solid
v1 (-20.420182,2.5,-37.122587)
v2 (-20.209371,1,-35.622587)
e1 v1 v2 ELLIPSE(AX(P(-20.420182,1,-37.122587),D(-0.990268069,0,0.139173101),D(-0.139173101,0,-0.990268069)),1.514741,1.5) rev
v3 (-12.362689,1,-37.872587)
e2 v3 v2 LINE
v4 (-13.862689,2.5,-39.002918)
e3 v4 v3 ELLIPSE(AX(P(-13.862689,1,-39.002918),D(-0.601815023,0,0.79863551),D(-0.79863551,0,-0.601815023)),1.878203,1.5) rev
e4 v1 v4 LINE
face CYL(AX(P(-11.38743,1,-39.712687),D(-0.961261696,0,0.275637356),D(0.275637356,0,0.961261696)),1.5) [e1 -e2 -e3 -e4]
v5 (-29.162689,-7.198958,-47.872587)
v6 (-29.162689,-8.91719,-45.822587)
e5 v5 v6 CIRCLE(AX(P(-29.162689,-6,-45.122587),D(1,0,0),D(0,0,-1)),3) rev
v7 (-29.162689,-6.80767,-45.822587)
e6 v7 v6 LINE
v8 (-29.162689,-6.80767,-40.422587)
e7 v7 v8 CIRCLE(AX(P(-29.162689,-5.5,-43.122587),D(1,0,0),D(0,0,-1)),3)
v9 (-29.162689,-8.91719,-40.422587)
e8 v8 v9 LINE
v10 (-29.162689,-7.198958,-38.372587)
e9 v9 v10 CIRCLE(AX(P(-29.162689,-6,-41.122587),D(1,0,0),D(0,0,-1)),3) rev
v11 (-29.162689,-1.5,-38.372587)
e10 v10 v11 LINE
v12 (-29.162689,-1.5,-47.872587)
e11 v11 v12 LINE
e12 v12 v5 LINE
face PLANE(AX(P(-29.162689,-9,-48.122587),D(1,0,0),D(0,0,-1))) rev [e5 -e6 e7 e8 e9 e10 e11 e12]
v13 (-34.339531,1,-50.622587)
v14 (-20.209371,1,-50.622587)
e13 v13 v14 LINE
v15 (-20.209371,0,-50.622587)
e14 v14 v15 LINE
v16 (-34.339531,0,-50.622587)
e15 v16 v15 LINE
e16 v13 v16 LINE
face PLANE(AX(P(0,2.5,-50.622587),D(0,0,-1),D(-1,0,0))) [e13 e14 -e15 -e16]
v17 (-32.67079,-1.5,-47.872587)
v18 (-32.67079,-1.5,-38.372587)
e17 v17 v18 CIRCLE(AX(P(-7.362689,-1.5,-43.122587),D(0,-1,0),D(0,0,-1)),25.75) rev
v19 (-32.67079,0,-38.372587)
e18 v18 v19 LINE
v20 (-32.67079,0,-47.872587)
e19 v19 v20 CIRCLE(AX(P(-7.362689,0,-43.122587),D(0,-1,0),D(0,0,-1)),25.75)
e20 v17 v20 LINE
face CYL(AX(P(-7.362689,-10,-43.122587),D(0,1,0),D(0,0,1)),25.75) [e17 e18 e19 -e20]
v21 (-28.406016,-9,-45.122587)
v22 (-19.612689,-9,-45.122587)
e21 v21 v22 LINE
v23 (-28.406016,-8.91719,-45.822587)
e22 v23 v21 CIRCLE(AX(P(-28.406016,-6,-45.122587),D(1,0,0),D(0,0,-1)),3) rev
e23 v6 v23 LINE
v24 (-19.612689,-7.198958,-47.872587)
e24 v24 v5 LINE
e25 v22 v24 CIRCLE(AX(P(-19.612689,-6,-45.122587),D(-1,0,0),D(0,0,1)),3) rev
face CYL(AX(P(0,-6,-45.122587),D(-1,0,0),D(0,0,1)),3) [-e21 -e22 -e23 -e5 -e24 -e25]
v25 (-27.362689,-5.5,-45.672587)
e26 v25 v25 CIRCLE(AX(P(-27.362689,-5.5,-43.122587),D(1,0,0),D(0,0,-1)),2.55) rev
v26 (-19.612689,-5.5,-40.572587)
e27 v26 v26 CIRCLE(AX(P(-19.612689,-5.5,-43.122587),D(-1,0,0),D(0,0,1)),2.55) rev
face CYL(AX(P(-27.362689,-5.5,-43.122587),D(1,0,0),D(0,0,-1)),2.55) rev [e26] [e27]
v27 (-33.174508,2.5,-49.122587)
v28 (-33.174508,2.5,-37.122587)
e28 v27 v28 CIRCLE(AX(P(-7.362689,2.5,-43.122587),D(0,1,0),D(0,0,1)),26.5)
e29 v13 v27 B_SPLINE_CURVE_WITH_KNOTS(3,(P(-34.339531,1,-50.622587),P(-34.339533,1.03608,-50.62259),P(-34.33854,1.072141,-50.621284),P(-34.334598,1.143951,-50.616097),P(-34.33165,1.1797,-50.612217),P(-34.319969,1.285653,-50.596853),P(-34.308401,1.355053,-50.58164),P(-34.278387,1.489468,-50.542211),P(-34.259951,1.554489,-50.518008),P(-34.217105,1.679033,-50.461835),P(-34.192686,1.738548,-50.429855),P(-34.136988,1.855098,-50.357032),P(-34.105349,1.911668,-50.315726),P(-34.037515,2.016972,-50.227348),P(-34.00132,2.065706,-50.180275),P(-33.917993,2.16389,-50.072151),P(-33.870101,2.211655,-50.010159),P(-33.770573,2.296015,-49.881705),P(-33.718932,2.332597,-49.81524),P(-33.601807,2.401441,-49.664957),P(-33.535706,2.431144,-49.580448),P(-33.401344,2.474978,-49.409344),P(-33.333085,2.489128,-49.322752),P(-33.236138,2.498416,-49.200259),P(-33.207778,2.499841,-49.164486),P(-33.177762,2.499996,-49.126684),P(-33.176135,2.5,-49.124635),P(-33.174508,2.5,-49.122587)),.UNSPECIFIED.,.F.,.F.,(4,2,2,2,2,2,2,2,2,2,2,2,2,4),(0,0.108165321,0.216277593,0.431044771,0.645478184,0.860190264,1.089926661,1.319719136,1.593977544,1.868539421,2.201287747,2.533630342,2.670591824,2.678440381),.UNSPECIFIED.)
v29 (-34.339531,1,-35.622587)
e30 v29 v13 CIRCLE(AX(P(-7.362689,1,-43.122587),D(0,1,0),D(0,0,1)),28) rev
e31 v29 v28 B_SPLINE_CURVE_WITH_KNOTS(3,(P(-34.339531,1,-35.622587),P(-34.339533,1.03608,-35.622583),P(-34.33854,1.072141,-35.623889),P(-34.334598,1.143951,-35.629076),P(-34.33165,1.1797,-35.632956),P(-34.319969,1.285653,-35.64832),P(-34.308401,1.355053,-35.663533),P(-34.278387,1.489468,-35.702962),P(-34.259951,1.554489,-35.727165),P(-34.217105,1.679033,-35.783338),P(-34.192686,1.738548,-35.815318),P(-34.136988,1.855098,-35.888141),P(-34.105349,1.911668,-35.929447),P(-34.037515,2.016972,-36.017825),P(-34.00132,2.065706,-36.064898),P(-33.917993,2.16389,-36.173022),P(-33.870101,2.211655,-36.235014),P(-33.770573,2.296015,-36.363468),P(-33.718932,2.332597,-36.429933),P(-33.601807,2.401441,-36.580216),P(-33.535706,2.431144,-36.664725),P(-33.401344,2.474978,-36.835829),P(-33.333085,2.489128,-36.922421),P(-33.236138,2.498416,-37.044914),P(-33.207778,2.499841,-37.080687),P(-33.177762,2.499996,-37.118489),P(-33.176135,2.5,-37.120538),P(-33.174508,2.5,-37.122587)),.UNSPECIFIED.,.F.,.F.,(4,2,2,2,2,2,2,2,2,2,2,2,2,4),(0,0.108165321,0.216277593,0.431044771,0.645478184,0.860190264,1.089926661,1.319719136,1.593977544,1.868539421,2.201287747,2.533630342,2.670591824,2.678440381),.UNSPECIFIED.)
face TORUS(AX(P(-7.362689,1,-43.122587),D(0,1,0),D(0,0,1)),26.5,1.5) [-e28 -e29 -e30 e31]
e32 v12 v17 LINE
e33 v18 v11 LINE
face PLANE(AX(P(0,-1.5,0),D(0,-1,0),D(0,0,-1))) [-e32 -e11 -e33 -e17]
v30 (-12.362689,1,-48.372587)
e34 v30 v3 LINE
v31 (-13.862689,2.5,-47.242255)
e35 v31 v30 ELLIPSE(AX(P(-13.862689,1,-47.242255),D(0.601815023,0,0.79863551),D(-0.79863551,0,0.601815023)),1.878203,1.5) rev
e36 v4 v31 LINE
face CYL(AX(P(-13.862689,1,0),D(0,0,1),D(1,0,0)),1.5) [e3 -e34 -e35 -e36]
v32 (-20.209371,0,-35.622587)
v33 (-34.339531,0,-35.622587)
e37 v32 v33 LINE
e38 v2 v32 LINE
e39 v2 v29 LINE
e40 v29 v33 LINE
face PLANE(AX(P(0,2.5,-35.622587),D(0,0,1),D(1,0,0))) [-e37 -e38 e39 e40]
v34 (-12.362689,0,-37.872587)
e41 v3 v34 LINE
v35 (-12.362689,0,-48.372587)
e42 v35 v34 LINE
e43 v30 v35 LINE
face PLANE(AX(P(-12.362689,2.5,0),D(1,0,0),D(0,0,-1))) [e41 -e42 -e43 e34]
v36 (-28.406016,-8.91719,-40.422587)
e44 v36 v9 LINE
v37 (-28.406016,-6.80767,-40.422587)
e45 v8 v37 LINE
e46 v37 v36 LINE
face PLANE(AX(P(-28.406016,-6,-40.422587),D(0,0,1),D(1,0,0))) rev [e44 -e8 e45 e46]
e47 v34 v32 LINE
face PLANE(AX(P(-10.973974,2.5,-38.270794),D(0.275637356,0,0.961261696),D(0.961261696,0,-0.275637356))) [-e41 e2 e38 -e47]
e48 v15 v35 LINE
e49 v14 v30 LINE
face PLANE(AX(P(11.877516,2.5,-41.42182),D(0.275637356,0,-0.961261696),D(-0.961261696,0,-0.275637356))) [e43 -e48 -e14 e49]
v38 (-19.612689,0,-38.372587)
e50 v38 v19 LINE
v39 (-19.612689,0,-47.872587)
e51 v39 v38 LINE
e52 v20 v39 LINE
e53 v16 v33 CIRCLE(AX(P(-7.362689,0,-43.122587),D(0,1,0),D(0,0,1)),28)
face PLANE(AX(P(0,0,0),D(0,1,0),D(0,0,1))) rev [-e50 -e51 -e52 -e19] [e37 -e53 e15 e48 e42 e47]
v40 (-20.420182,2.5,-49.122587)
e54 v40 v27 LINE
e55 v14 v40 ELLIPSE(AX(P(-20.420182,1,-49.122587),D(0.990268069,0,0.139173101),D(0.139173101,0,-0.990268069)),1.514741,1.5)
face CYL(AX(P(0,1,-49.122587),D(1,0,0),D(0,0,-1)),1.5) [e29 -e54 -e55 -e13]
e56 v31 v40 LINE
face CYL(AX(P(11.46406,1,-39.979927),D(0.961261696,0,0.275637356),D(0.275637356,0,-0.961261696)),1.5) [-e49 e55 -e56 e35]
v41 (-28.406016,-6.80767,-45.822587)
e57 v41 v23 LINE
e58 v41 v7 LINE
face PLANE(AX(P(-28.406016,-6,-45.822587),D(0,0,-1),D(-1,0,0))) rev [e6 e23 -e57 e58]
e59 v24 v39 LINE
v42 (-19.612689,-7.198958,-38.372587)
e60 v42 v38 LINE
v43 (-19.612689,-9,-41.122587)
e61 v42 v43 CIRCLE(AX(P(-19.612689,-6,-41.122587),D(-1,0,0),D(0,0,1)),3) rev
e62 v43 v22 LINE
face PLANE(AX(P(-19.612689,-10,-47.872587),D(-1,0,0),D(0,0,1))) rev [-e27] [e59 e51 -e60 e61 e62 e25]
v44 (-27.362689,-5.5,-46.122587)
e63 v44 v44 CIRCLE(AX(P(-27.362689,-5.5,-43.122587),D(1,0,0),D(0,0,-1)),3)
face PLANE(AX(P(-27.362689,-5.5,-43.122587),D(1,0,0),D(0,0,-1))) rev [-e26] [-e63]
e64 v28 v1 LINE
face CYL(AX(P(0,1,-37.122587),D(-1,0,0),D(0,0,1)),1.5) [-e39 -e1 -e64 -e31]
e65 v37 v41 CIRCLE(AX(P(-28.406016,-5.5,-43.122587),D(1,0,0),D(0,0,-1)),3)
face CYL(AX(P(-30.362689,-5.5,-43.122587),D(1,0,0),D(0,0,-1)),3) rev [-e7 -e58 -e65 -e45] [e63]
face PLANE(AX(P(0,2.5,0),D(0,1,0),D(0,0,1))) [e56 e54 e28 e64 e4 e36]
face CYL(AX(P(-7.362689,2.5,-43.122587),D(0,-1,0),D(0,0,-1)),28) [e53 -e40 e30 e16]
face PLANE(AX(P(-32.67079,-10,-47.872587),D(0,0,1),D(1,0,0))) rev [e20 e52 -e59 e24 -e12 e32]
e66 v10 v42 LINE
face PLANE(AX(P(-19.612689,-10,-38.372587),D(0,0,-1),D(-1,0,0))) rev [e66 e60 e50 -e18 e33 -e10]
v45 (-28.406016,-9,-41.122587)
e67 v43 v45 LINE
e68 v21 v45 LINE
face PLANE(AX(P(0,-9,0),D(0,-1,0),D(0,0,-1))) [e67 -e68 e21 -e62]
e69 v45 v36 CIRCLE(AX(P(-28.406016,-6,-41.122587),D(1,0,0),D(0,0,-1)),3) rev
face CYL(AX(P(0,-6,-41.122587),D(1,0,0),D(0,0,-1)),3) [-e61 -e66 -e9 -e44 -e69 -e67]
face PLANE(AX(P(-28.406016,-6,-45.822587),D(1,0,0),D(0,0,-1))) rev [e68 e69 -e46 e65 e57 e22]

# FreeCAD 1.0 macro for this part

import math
import FreeCAD as App
import Part
import Sketcher
Q = App.Units.Quantity


def edges_at(feature, points):
    """Names of the edges that pass closest to the given points."""
    edges = feature.Shape.Edges
    near = lambda p: min(range(len(edges)), key=lambda i: edges[i].distToShape(Part.Vertex(*p))[0])
    return sorted({f"Edge{near(p) + 1}" for p in points})


def add_polygon(sketch, points):
    """Adds a closed chain of lines whose ends are joined by coincident constraints."""
    first, n = sketch.GeometryCount, len(points)
    for a, b in zip(points, points[1:] + points[:1]):
        sketch.addGeometry(Part.LineSegment(App.Vector(*a, 0), App.Vector(*b, 0)), False)
    for i in range(n):
        sketch.addConstraint(Sketcher.Constraint("Coincident", first + i, 2, first + (i + 1) % n, 1))

doc = App.newDocument("Part")
params = doc.addObject("Spreadsheet::Sheet", "Params")
for row, (alias, value) in enumerate([
    ("sketch1_radius", "28 mm"),
    ("sketch1_height", "10.5 mm"),
    ("pad1_length", "2.5 mm"),
    ("sketch2_radius", "26 mm"),
    ("sketch2_height", "10 mm"),
    ("pad2_length", "1.5 mm"),
    ("pad2_length2", "1.5 mm"),
    ("fillet_radius", "1.5 mm"),
    ("sketch3_height", "10 mm"),
    ("sketch3_width", "9.8 mm"),
    ("pad3_length", "7.5 mm"),
    ("sketch4_diameter", "5.1 mm"),
    ("pocket1_length", "8 mm"),
    ("fillet2_radius", "3 mm"),
    ("sketch5_diameter", "6 mm"),
    ("sketch5_diameter2", "5.2 mm"),
    ("pad4_length", "0.8 mm"),
    ("sketch6_height", "5.4 mm"),
    ("pocket2_length", "3 mm"),
    ("sketch7_diameter", "6 mm"),
    ("pocket3_length", "3 mm"),
    ("sketch8_radius", "26 mm"),
    ("sketch8_height", "10 mm"),
    ("sketch8_radius2", "25.75 mm"),
    ("sketch8_height2", "9.5 mm"),
    ("pocket4_length", "10 mm"),
], start=1):
    params.set(f"A{row}", alias)
    params.set(f"B{row}", "=" + value)
    params.setAlias(f"B{row}", alias)

body = doc.addObject("PartDesign::Body", "Body")

# Sketch on XZ plane
sketch1 = doc.addObject("Sketcher::SketchObject", "Sketch")
body.addObject(sketch1)
sketch1.AttachmentSupport = (doc.XZ_Plane, [""])
sketch1.MapMode = "FlatFace"
sketch1.addGeometry([
    Part.LineSegment(App.Vector(-20.209371, -50.622587, 0), App.Vector(-34.339531, -50.622587, 0)),  # 0
    Part.ArcOfCircle(Part.Circle(App.Vector(-7.362689, -43.122587, 0), App.Vector(0, 0, 1), 28), math.radians(164.463206), math.radians(195.536794)),  # 1
    Part.LineSegment(App.Vector(-34.339531, -35.622587, 0), App.Vector(-20.209371, -35.622587, 0)),  # 2
    Part.LineSegment(App.Vector(-20.209371, -35.622587, 0), App.Vector(-12.362689, -37.872587, 0)),  # 3
    Part.LineSegment(App.Vector(-12.362689, -37.872587, 0), App.Vector(-12.362689, -48.372587, 0)),  # 4
    Part.LineSegment(App.Vector(-12.362689, -48.372587, 0), App.Vector(-20.209371, -50.622587, 0)),  # 5
], False)
sketch1.addConstraint([
    Sketcher.Constraint("Coincident", 0, 2, 1, 2),
    Sketcher.Constraint("Coincident", 1, 1, 2, 1),
    Sketcher.Constraint("Coincident", 2, 2, 3, 1),
    Sketcher.Constraint("Coincident", 3, 2, 4, 1),
    Sketcher.Constraint("Coincident", 4, 2, 5, 1),
    Sketcher.Constraint("Coincident", 5, 2, 0, 1),
    Sketcher.Constraint("Horizontal", 0),
    Sketcher.Constraint("Horizontal", 2),
    Sketcher.Constraint("Vertical", 4),
    Sketcher.Constraint("Vertical", 0, 2, 1, 1),
    Sketcher.Constraint("Vertical", 2, 2, 5, 2),
    Sketcher.Constraint("Equal", 3, 5),
    Sketcher.Constraint("Radius", 1, 28.0),
    Sketcher.Constraint("Angle", 3, Q("-16 deg")),
    Sketcher.Constraint("DistanceY", 4, 2, 4, 1, 10.5),
    Sketcher.Constraint("DistanceY", 0, 2, 1, 1, 15.0),
    Sketcher.Constraint("DistanceX", 3, 2, 1, 3, 5.0),
    Sketcher.Constraint("DistanceX", 1, 3, -1, 1, 7.362689),
    Sketcher.Constraint("DistanceY", 1, 3, -1, 1, 43.122587),
])
sketch1.setExpression("Constraints[12]", "Params.sketch1_radius")
sketch1.setExpression("Constraints[14]", "Params.sketch1_height")
pad1 = doc.addObject("PartDesign::Pad", "Pad")
body.addObject(pad1)
pad1.Profile = sketch1
pad1.setExpression("Length", "Params.pad1_length")
pad1.Reversed = True

# Sketch on XZ plane
sketch2 = doc.addObject("Sketcher::SketchObject", "Sketch001")
body.addObject(sketch2)
sketch2.AttachmentSupport = (doc.XZ_Plane, [""])
sketch2.MapMode = "FlatFace"
sketch2.addGeometry([
    Part.LineSegment(App.Vector(-19.362689, -38.122587, 0), App.Vector(-32.87739, -38.122587, 0)),
    Part.ArcOfCircle(Part.Circle(App.Vector(-7.362689, -43.122587, 0), App.Vector(0, 0, 1), 26), math.radians(168.912511), math.radians(191.087489)),
    Part.LineSegment(App.Vector(-32.87739, -48.122587, 0), App.Vector(-19.362689, -48.122587, 0)),
    Part.LineSegment(App.Vector(-19.362689, -48.122587, 0), App.Vector(-19.362689, -38.122587, 0)),
], False)
sketch2.addConstraint([
    Sketcher.Constraint("Coincident", 0, 2, 1, 1),
    Sketcher.Constraint("Coincident", 1, 2, 2, 1),
    Sketcher.Constraint("Coincident", 2, 2, 3, 1),
    Sketcher.Constraint("Coincident", 3, 2, 0, 1),
    Sketcher.Constraint("Horizontal", 0),
    Sketcher.Constraint("Horizontal", 2),
    Sketcher.Constraint("Vertical", 3),
    Sketcher.Constraint("Vertical", 0, 2, 1, 2),
    Sketcher.Constraint("Radius", 1, 26.0),
    Sketcher.Constraint("DistanceY", 3, 1, 3, 2, 10.0),
    Sketcher.Constraint("DistanceX", 2, 2, 1, 3, 12.0),
    Sketcher.Constraint("DistanceX", 1, 3, -1, 1, 7.362689),
    Sketcher.Constraint("DistanceY", 1, 3, -1, 1, 43.122587),
])
sketch2.setExpression("Constraints[8]", "Params.sketch2_radius")
sketch2.setExpression("Constraints[9]", "Params.sketch2_height")
pad2 = doc.addObject("PartDesign::Pad", "Pad001")
body.addObject(pad2)
pad2.Profile = sketch2
pad2.Type = "TwoLengths"
pad2.setExpression("Length", "Params.pad2_length")
pad2.setExpression("Length2", "Params.pad2_length2")
doc.recompute()

fillet = doc.addObject("PartDesign::Fillet", "Fillet")
body.addObject(fillet)
fillet.Base = (pad2, edges_at(pad2, [
    (-27.274, 2.5, -35.623),
    (-16.286, 2.5, -36.748),
    (-12.363, 2.5, -43.123),
    (-16.286, 2.5, -49.498),
    (-27.274, 2.5, -50.623),
    (-35.363, 2.5, -43.123),
]))
fillet.setExpression("Radius", "Params.fillet_radius")

# Sketch on XZ plane
sketch3 = doc.addObject("Sketcher::SketchObject", "Sketch002")
body.addObject(sketch3)
sketch3.AttachmentSupport = (doc.XZ_Plane, [""])
sketch3.MapMode = "FlatFace"
sketch3.AttachmentOffset = App.Placement(App.Vector(0, 0, 1.5), App.Rotation())
add_polygon(sketch3, [(-29.162689, -38.122587), (-29.162689, -48.122587), (-19.362689, -48.122587), (-19.362689, -38.122587)])  # lines 0-3
sketch3.addConstraint([
    Sketcher.Constraint("Vertical", 0),
    Sketcher.Constraint("Horizontal", 1),
    Sketcher.Constraint("Vertical", 2),
    Sketcher.Constraint("Horizontal", 3),
    Sketcher.Constraint("DistanceY", 0, 2, 0, 1, 10.0),
    Sketcher.Constraint("DistanceX", 1, 1, 1, 2, 9.8),
    Sketcher.Constraint("DistanceX", 0, 2, -1, 1, 29.162689),
    Sketcher.Constraint("DistanceY", 0, 2, -1, 1, 48.122587),
])
sketch3.setExpression("Constraints[8]", "Params.sketch3_height")
sketch3.setExpression("Constraints[9]", "Params.sketch3_width")
pad3 = doc.addObject("PartDesign::Pad", "Pad002")
body.addObject(pad3)
pad3.Profile = sketch3
pad3.setExpression("Length", "Params.pad3_length")

# Sketch on YZ plane
sketch4 = doc.addObject("Sketcher::SketchObject", "Sketch003")
body.addObject(sketch4)
sketch4.AttachmentSupport = (doc.YZ_Plane, [""])
sketch4.MapMode = "FlatFace"
sketch4.AttachmentOffset = App.Placement(App.Vector(0, 0, -19.362689), App.Rotation())
sketch4.addGeometry(Part.Circle(App.Vector(-5.5, -43.122587, 0), App.Vector(0, 0, 1), 2.55), False)
sketch4.addConstraint([
    Sketcher.Constraint("Diameter", 0, 5.1),
    Sketcher.Constraint("DistanceX", 0, 3, -1, 1, 5.5),
    Sketcher.Constraint("DistanceY", 0, 3, -1, 1, 43.122587),
])
sketch4.setExpression("Constraints[0]", "Params.sketch4_diameter")
pocket1 = doc.addObject("PartDesign::Pocket", "Pocket")
body.addObject(pocket1)
pocket1.Profile = sketch4
pocket1.setExpression("Length", "Params.pocket1_length")
doc.recompute()

fillet2 = doc.addObject("PartDesign::Fillet", "Fillet001")
body.addObject(fillet2)
fillet2.Base = (pocket1, edges_at(pocket1, [(-24.263, -9, -38.123), (-24.263, -9, -48.123)]))
fillet2.setExpression("Radius", "Params.fillet2_radius")

# Sketch on YZ plane
sketch5 = doc.addObject("Sketcher::SketchObject", "Sketch004")
body.addObject(sketch5)
sketch5.AttachmentSupport = (doc.YZ_Plane, [""])
sketch5.MapMode = "FlatFace"
sketch5.AttachmentOffset = App.Placement(App.Vector(0, 0, -29.162689), App.Rotation())
sketch5.addGeometry([
    Part.Circle(App.Vector(-5.5, -43.122587, 0), App.Vector(0, 0, 1), 3),
    Part.Circle(App.Vector(-5.5, -43.122587, 0), App.Vector(0, 0, 1), 2.6),
], False)
sketch5.addConstraint([
    Sketcher.Constraint("Coincident", 1, 3, 0, 3),
    Sketcher.Constraint("Diameter", 0, 6.0),
    Sketcher.Constraint("Diameter", 1, 5.2),
    Sketcher.Constraint("DistanceX", 0, 3, -1, 1, 5.5),
    Sketcher.Constraint("DistanceY", 0, 3, -1, 1, 43.122587),
])
sketch5.setExpression("Constraints[1]", "Params.sketch5_diameter")
sketch5.setExpression("Constraints[2]", "Params.sketch5_diameter2")
pad4 = doc.addObject("PartDesign::Pad", "Pad003")
body.addObject(pad4)
pad4.Profile = sketch5
pad4.setExpression("Length", "Params.pad4_length")

# Sketch on XZ plane
sketch6 = doc.addObject("Sketcher::SketchObject", "Sketch005")
body.addObject(sketch6)
sketch6.AttachmentSupport = (doc.XZ_Plane, [""])
sketch6.MapMode = "FlatFace"
sketch6.AttachmentOffset = App.Placement(App.Vector(0, 0, 9), App.Rotation())
add_polygon(sketch6, [(-28.406016, -45.822587), (-28.406016, -40.422587), (-29.162689, -40.422587), (-29.162689, -45.822587)])  # lines 0-3
sketch6.addConstraint([
    Sketcher.Constraint("Vertical", 0),
    Sketcher.Constraint("Horizontal", 1),
    Sketcher.Constraint("Vertical", 2),
    Sketcher.Constraint("Horizontal", 3),
    Sketcher.Constraint("DistanceY", 0, 1, 0, 2, 5.4),
    Sketcher.Constraint("DistanceX", 1, 2, 1, 1, 0.756673),
    Sketcher.Constraint("DistanceX", 1, 2, -1, 1, 29.162689),
    Sketcher.Constraint("DistanceY", 0, 2, -1, 1, 40.422587),
])
sketch6.setExpression("Constraints[8]", "Params.sketch6_height")
pocket2 = doc.addObject("PartDesign::Pocket", "Pocket001")
body.addObject(pocket2)
pocket2.Profile = sketch6
pocket2.setExpression("Length", "Params.pocket2_length")

# Sketch on YZ plane
sketch7 = doc.addObject("Sketcher::SketchObject", "Sketch006")
body.addObject(sketch7)
sketch7.AttachmentSupport = (doc.YZ_Plane, [""])
sketch7.MapMode = "FlatFace"
sketch7.AttachmentOffset = App.Placement(App.Vector(0, 0, -27.362689), App.Rotation())
sketch7.addGeometry(Part.Circle(App.Vector(-5.5, -43.122587, 0), App.Vector(0, 0, 1), 3), False)
sketch7.addConstraint([
    Sketcher.Constraint("Diameter", 0, 6.0),
    Sketcher.Constraint("DistanceX", 0, 3, -1, 1, 5.5),
    Sketcher.Constraint("DistanceY", 0, 3, -1, 1, 43.122587),
])
sketch7.setExpression("Constraints[0]", "Params.sketch7_diameter")
pocket3 = doc.addObject("PartDesign::Pocket", "Pocket002")
body.addObject(pocket3)
pocket3.Profile = sketch7
pocket3.setExpression("Length", "Params.pocket3_length")

# Sketch on XZ plane
sketch8 = doc.addObject("Sketcher::SketchObject", "Sketch007")
body.addObject(sketch8)
sketch8.AttachmentSupport = (doc.XZ_Plane, [""])
sketch8.MapMode = "FlatFace"
sketch8.addGeometry([
    Part.LineSegment(App.Vector(-19.362689, -38.122587, 0), App.Vector(-32.87739, -38.122587, 0)),  # 0
    Part.ArcOfCircle(Part.Circle(App.Vector(-7.362689, -43.122587, 0), App.Vector(0, 0, 1), 26), math.radians(168.912511), math.radians(191.087489)),  # 1
    Part.LineSegment(App.Vector(-32.87739, -48.122587, 0), App.Vector(-19.362689, -48.122587, 0)),  # 2
    Part.LineSegment(App.Vector(-19.362689, -48.122587, 0), App.Vector(-19.362689, -38.122587, 0)),  # 3
    Part.LineSegment(App.Vector(-32.67079, -38.372587, 0), App.Vector(-19.612689, -38.372587, 0)),  # 4
    Part.LineSegment(App.Vector(-19.612689, -38.372587, 0), App.Vector(-19.612689, -47.872587, 0)),  # 5
    Part.LineSegment(App.Vector(-19.612689, -47.872587, 0), App.Vector(-32.67079, -47.872587, 0)),  # 6
    Part.ArcOfCircle(Part.Circle(App.Vector(-7.362689, -43.122587, 0), App.Vector(0, 0, 1), 25.75), math.radians(169.369998), math.radians(190.630002)),  # 7
], False)
sketch8.addConstraint([
    Sketcher.Constraint("Coincident", 0, 2, 1, 1),
    Sketcher.Constraint("Coincident", 1, 2, 2, 1),
    Sketcher.Constraint("Coincident", 2, 2, 3, 1),
    Sketcher.Constraint("Coincident", 3, 2, 0, 1),
    Sketcher.Constraint("Coincident", 4, 2, 5, 1),
    Sketcher.Constraint("Coincident", 5, 2, 6, 1),
    Sketcher.Constraint("Coincident", 6, 2, 7, 2),
    Sketcher.Constraint("Coincident", 7, 1, 4, 1),
    Sketcher.Constraint("Horizontal", 0),
    Sketcher.Constraint("Horizontal", 2),
    Sketcher.Constraint("Vertical", 3),
    Sketcher.Constraint("Horizontal", 4),
    Sketcher.Constraint("Vertical", 5),
    Sketcher.Constraint("Horizontal", 6),
    Sketcher.Constraint("Coincident", 7, 3, 1, 3),
    Sketcher.Constraint("Vertical", 0, 2, 1, 2),
    Sketcher.Constraint("Vertical", 6, 2, 7, 1),
    Sketcher.Constraint("Radius", 1, 26.0),
    Sketcher.Constraint("DistanceY", 3, 1, 3, 2, 10.0),
    Sketcher.Constraint("Radius", 7, 25.75),
    Sketcher.Constraint("DistanceY", 5, 2, 5, 1, 9.5),
    Sketcher.Constraint("DistanceX", 2, 2, 1, 3, 12.0),
    Sketcher.Constraint("DistanceX", 4, 2, 3, 2, 0.25),
    Sketcher.Constraint("DistanceX", 1, 3, -1, 1, 7.362689),
    Sketcher.Constraint("DistanceY", 1, 3, -1, 1, 43.122587),
])
sketch8.setExpression("Constraints[17]", "Params.sketch8_radius")
sketch8.setExpression("Constraints[18]", "Params.sketch8_height")
sketch8.setExpression("Constraints[19]", "Params.sketch8_radius2")
sketch8.setExpression("Constraints[20]", "Params.sketch8_height2")
pocket4 = doc.addObject("PartDesign::Pocket", "Pocket003")
body.addObject(pocket4)
pocket4.Profile = sketch8
pocket4.setExpression("Length", "Params.pocket4_length")
pocket4.Reversed = True

doc.recompute()
